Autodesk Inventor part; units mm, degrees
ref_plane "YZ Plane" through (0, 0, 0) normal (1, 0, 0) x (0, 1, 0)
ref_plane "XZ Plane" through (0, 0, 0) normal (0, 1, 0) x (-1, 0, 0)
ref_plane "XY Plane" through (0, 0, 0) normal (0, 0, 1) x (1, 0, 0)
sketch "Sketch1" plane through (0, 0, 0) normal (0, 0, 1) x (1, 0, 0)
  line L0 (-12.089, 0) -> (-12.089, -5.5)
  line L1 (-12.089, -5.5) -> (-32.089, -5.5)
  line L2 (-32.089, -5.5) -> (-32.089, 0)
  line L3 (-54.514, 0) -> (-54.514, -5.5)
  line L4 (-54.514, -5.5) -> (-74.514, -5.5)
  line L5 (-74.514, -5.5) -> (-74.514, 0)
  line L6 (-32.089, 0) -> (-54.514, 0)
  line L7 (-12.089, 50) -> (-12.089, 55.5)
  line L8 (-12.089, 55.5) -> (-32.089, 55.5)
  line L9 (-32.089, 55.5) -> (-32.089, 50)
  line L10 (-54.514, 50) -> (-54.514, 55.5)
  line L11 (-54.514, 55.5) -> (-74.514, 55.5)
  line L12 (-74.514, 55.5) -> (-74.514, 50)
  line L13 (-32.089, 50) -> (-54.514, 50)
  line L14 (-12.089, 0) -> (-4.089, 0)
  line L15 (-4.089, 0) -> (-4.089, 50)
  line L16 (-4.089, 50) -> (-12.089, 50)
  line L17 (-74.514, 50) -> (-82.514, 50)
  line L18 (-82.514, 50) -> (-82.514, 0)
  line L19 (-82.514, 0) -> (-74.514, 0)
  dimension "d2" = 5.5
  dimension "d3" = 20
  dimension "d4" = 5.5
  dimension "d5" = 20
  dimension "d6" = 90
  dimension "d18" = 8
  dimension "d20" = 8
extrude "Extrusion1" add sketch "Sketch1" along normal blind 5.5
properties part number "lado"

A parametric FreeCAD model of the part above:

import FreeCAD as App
import Part
import Sketcher
Q = App.Units.Quantity

doc = App.newDocument("Part")
body = doc.addObject("PartDesign::Body", "Body")

# Sketch on XY plane
sketch1 = body.newObject("Sketcher::SketchObject", "Sketch")
sketch1.AttachmentSupport = (doc.getObject("XY_Plane"), [""])
sketch1.MapMode = "FlatFace"
sketch1.addGeometry(Part.LineSegment(App.Vector(-12, -6, 0), App.Vector(-12, 0, 0)), False)
sketch1.addGeometry(Part.LineSegment(App.Vector(-12, 0, 0), App.Vector(-4, 0, 0)), False)
sketch1.addGeometry(Part.LineSegment(App.Vector(-4, 0, 0), App.Vector(-4, 50, 0)), False)
sketch1.addGeometry(Part.LineSegment(App.Vector(-4, 50, 0), App.Vector(-12, 50, 0)), False)
sketch1.addGeometry(Part.LineSegment(App.Vector(-12, 50, 0), App.Vector(-12, 56, 0)), False)
sketch1.addGeometry(Part.LineSegment(App.Vector(-12, 56, 0), App.Vector(-32, 56, 0)), False)
sketch1.addGeometry(Part.LineSegment(App.Vector(-32, 56, 0), App.Vector(-32, 50, 0)), False)
sketch1.addGeometry(Part.LineSegment(App.Vector(-32, 50, 0), App.Vector(-55, 50, 0)), False)
sketch1.addGeometry(Part.LineSegment(App.Vector(-55, 50, 0), App.Vector(-55, 56, 0)), False)
sketch1.addGeometry(Part.LineSegment(App.Vector(-55, 56, 0), App.Vector(-75, 56, 0)), False)
sketch1.addGeometry(Part.LineSegment(App.Vector(-75, 56, 0), App.Vector(-75, 50, 0)), False)
sketch1.addGeometry(Part.LineSegment(App.Vector(-75, 50, 0), App.Vector(-83, 50, 0)), False)
sketch1.addGeometry(Part.LineSegment(App.Vector(-83, 50, 0), App.Vector(-83, 0, 0)), False)
sketch1.addGeometry(Part.LineSegment(App.Vector(-83, 0, 0), App.Vector(-75, 0, 0)), False)
sketch1.addGeometry(Part.LineSegment(App.Vector(-75, 0, 0), App.Vector(-75, -6, 0)), False)
sketch1.addGeometry(Part.LineSegment(App.Vector(-75, -6, 0), App.Vector(-55, -6, 0)), False)
sketch1.addGeometry(Part.LineSegment(App.Vector(-55, -6, 0), App.Vector(-55, 0, 0)), False)
sketch1.addGeometry(Part.LineSegment(App.Vector(-55, 0, 0), App.Vector(-32, 0, 0)), False)
sketch1.addGeometry(Part.LineSegment(App.Vector(-32, 0, 0), App.Vector(-32, -6, 0)), False)
sketch1.addGeometry(Part.LineSegment(App.Vector(-32, -6, 0), App.Vector(-12, -6, 0)), False)
sketch1.addConstraint(Sketcher.Constraint("Coincident", 0, 2, 1, 1))
sketch1.addConstraint(Sketcher.Constraint("Coincident", 1, 2, 2, 1))
sketch1.addConstraint(Sketcher.Constraint("Coincident", 2, 2, 3, 1))
sketch1.addConstraint(Sketcher.Constraint("Coincident", 3, 2, 4, 1))
sketch1.addConstraint(Sketcher.Constraint("Coincident", 4, 2, 5, 1))
sketch1.addConstraint(Sketcher.Constraint("Coincident", 5, 2, 6, 1))
sketch1.addConstraint(Sketcher.Constraint("Coincident", 6, 2, 7, 1))
sketch1.addConstraint(Sketcher.Constraint("Coincident", 7, 2, 8, 1))
sketch1.addConstraint(Sketcher.Constraint("Coincident", 8, 2, 9, 1))
sketch1.addConstraint(Sketcher.Constraint("Coincident", 9, 2, 10, 1))
sketch1.addConstraint(Sketcher.Constraint("Coincident", 10, 2, 11, 1))
sketch1.addConstraint(Sketcher.Constraint("Coincident", 11, 2, 12, 1))
sketch1.addConstraint(Sketcher.Constraint("Coincident", 12, 2, 13, 1))
sketch1.addConstraint(Sketcher.Constraint("Coincident", 13, 2, 14, 1))
sketch1.addConstraint(Sketcher.Constraint("Coincident", 14, 2, 15, 1))
sketch1.addConstraint(Sketcher.Constraint("Coincident", 15, 2, 16, 1))
sketch1.addConstraint(Sketcher.Constraint("Coincident", 16, 2, 17, 1))
sketch1.addConstraint(Sketcher.Constraint("Coincident", 17, 2, 18, 1))
sketch1.addConstraint(Sketcher.Constraint("Coincident", 18, 2, 19, 1))
sketch1.addConstraint(Sketcher.Constraint("Coincident", 19, 2, 0, 1))
sketch1.addConstraint(Sketcher.Constraint("Vertical", 0))
sketch1.addConstraint(Sketcher.Constraint("Horizontal", 1))
sketch1.addConstraint(Sketcher.Constraint("Vertical", 2))
sketch1.addConstraint(Sketcher.Constraint("Horizontal", 3))
sketch1.addConstraint(Sketcher.Constraint("Vertical", 4))
sketch1.addConstraint(Sketcher.Constraint("Horizontal", 5))
sketch1.addConstraint(Sketcher.Constraint("Vertical", 6))
sketch1.addConstraint(Sketcher.Constraint("Horizontal", 7))
sketch1.addConstraint(Sketcher.Constraint("Vertical", 8))
sketch1.addConstraint(Sketcher.Constraint("Horizontal", 9))
sketch1.addConstraint(Sketcher.Constraint("Vertical", 10))
sketch1.addConstraint(Sketcher.Constraint("Horizontal", 11))
sketch1.addConstraint(Sketcher.Constraint("Vertical", 12))
sketch1.addConstraint(Sketcher.Constraint("Horizontal", 13))
sketch1.addConstraint(Sketcher.Constraint("Vertical", 14))
sketch1.addConstraint(Sketcher.Constraint("Horizontal", 15))
sketch1.addConstraint(Sketcher.Constraint("Vertical", 16))
sketch1.addConstraint(Sketcher.Constraint("Horizontal", 17))
sketch1.addConstraint(Sketcher.Constraint("Vertical", 18))
sketch1.addConstraint(Sketcher.Constraint("Horizontal", 19))
sketch1.addConstraint(Sketcher.Constraint("PointOnObject", 0, 2, -1))
sketch1.addConstraint(Sketcher.Constraint("PointOnObject", 12, 2, -1))
sketch1.addConstraint(Sketcher.Constraint("PointOnObject", 16, 2, -1))
sketch1.addConstraint(Sketcher.Constraint("Horizontal", 3, 2, 6, 2))
sketch1.addConstraint(Sketcher.Constraint("Horizontal", 5, 2, 8, 2))
sketch1.addConstraint(Sketcher.Constraint("Horizontal", 7, 2, 10, 2))
sketch1.addConstraint(Sketcher.Constraint("Horizontal", 15, 2, 18, 2))
sketch1.addConstraint(Sketcher.Constraint("Vertical", 0, 2, 3, 2))
sketch1.addConstraint(Sketcher.Constraint("Vertical", 10, 2, 13, 2))
sketch1.addConstraint(Sketcher.Constraint("Vertical", 8, 2, 15, 2))
sketch1.addConstraint(Sketcher.Constraint("Vertical", 6, 2, 17, 2))
sketch1.addConstraint(Sketcher.Constraint("Equal", 5, 9))
sketch1.addConstraint(Sketcher.Constraint("Equal", 3, 11))
sketch1.addConstraint(Sketcher.Constraint("Equal", 0, 4))
sketch1.addConstraint(Sketcher.Constraint("DistanceX", 1, 1, 1, 2, Q("8 mm")))
sketch1.addConstraint(Sketcher.Constraint("DistanceX", 5, 2, 5, 1, Q("20 mm")))
sketch1.addConstraint(Sketcher.Constraint("DistanceY", 0, 1, 0, 2, Q("5.5 mm")))
sketch1.addConstraint(Sketcher.Constraint("DistanceY", 2, 1, 2, 2, Q("50 mm")))
sketch1.addConstraint(Sketcher.Constraint("DistanceX", 7, 2, 7, 1, Q("22.425 mm")))
sketch1.addConstraint(Sketcher.Constraint("DistanceX", 0, 2, -1, 1, Q("12.089 mm")))
pad1 = body.newObject("PartDesign::Pad", "Pad")
pad1.Profile = sketch1
pad1.Length = 5.5

doc.recompute()
